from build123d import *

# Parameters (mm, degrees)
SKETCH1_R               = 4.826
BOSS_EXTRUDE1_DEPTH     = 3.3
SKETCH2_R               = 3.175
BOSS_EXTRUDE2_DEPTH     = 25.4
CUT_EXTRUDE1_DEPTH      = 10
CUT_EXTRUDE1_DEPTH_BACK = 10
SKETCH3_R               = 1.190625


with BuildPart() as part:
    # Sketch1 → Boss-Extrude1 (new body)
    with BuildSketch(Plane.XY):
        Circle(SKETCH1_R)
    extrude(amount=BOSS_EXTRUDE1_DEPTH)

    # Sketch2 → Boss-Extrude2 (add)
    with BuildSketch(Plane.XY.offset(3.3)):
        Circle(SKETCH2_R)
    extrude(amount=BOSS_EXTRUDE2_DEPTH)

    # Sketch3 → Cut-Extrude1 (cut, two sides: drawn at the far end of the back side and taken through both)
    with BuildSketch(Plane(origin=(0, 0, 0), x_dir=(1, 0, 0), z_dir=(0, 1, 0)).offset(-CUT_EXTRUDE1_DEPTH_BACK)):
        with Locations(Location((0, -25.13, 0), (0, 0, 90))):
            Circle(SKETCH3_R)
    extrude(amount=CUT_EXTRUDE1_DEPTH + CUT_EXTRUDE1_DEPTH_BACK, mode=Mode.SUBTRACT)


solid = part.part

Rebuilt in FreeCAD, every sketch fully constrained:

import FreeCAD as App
import Part
import Sketcher

V = App.Vector
Q = App.Units.Quantity

doc = App.newDocument("Part")
body = doc.addObject("PartDesign::Body", "Body")

# Sketch on XY plane
sketch1 = body.newObject("Sketcher::SketchObject", "Sketch")
sketch1.AttachmentSupport = (doc.getObject("XY_Plane"), [""])
sketch1.MapMode = "FlatFace"
sketch1.addGeometry(Part.Circle(V(0, 0, 0), V(0, 0, 1), 4.826), False)
sketch1.addConstraint([
    Sketcher.Constraint("Coincident", 0, 3, -1, 1),
    Sketcher.Constraint("Diameter", 0, Q("0.38 in")),
])
pad1 = body.newObject("PartDesign::Pad", "Pad")
pad1.Profile = sketch1
pad1.Length = 3.3

# Sketch on XY plane
sketch2 = body.newObject("Sketcher::SketchObject", "Sketch001")
sketch2.AttachmentSupport = (doc.getObject("XY_Plane"), [""])
sketch2.MapMode = "FlatFace"
sketch2.AttachmentOffset = App.Placement(V(0, 0, 3.3), App.Rotation())
sketch2.addGeometry(Part.Circle(V(0, 0, 0), V(0, 0, 1), 3.175), False)
sketch2.addConstraint([
    Sketcher.Constraint("Coincident", 0, 3, -1, 1),
    Sketcher.Constraint("Diameter", 0, Q("0.25 in")),
])
pad2 = body.newObject("PartDesign::Pad", "Pad001")
pad2.Profile = sketch2
pad2.Length = Q("1 in")

# Sketch on XZ plane
sketch3 = body.newObject("Sketcher::SketchObject", "Sketch002")
sketch3.AttachmentSupport = (doc.getObject("XZ_Plane"), [""])
sketch3.MapMode = "FlatFace"
sketch3.addGeometry(Part.Circle(V(0, 25.13, 0), V(0, 0, 1), 1.190625), False)
sketch3.addConstraint([
    Sketcher.Constraint("PointOnObject", 0, 3, -2),
    Sketcher.Constraint("Diameter", 0, Q("0.09375 in")),
    Sketcher.Constraint("DistanceY", -1, 1, 0, 3, 25.13),
])
pocket1 = body.newObject("PartDesign::Pocket", "Pocket")
pocket1.Profile = sketch3
pocket1.Type = "ThroughAll"
pocket1.Midplane = True

doc.recompute()
